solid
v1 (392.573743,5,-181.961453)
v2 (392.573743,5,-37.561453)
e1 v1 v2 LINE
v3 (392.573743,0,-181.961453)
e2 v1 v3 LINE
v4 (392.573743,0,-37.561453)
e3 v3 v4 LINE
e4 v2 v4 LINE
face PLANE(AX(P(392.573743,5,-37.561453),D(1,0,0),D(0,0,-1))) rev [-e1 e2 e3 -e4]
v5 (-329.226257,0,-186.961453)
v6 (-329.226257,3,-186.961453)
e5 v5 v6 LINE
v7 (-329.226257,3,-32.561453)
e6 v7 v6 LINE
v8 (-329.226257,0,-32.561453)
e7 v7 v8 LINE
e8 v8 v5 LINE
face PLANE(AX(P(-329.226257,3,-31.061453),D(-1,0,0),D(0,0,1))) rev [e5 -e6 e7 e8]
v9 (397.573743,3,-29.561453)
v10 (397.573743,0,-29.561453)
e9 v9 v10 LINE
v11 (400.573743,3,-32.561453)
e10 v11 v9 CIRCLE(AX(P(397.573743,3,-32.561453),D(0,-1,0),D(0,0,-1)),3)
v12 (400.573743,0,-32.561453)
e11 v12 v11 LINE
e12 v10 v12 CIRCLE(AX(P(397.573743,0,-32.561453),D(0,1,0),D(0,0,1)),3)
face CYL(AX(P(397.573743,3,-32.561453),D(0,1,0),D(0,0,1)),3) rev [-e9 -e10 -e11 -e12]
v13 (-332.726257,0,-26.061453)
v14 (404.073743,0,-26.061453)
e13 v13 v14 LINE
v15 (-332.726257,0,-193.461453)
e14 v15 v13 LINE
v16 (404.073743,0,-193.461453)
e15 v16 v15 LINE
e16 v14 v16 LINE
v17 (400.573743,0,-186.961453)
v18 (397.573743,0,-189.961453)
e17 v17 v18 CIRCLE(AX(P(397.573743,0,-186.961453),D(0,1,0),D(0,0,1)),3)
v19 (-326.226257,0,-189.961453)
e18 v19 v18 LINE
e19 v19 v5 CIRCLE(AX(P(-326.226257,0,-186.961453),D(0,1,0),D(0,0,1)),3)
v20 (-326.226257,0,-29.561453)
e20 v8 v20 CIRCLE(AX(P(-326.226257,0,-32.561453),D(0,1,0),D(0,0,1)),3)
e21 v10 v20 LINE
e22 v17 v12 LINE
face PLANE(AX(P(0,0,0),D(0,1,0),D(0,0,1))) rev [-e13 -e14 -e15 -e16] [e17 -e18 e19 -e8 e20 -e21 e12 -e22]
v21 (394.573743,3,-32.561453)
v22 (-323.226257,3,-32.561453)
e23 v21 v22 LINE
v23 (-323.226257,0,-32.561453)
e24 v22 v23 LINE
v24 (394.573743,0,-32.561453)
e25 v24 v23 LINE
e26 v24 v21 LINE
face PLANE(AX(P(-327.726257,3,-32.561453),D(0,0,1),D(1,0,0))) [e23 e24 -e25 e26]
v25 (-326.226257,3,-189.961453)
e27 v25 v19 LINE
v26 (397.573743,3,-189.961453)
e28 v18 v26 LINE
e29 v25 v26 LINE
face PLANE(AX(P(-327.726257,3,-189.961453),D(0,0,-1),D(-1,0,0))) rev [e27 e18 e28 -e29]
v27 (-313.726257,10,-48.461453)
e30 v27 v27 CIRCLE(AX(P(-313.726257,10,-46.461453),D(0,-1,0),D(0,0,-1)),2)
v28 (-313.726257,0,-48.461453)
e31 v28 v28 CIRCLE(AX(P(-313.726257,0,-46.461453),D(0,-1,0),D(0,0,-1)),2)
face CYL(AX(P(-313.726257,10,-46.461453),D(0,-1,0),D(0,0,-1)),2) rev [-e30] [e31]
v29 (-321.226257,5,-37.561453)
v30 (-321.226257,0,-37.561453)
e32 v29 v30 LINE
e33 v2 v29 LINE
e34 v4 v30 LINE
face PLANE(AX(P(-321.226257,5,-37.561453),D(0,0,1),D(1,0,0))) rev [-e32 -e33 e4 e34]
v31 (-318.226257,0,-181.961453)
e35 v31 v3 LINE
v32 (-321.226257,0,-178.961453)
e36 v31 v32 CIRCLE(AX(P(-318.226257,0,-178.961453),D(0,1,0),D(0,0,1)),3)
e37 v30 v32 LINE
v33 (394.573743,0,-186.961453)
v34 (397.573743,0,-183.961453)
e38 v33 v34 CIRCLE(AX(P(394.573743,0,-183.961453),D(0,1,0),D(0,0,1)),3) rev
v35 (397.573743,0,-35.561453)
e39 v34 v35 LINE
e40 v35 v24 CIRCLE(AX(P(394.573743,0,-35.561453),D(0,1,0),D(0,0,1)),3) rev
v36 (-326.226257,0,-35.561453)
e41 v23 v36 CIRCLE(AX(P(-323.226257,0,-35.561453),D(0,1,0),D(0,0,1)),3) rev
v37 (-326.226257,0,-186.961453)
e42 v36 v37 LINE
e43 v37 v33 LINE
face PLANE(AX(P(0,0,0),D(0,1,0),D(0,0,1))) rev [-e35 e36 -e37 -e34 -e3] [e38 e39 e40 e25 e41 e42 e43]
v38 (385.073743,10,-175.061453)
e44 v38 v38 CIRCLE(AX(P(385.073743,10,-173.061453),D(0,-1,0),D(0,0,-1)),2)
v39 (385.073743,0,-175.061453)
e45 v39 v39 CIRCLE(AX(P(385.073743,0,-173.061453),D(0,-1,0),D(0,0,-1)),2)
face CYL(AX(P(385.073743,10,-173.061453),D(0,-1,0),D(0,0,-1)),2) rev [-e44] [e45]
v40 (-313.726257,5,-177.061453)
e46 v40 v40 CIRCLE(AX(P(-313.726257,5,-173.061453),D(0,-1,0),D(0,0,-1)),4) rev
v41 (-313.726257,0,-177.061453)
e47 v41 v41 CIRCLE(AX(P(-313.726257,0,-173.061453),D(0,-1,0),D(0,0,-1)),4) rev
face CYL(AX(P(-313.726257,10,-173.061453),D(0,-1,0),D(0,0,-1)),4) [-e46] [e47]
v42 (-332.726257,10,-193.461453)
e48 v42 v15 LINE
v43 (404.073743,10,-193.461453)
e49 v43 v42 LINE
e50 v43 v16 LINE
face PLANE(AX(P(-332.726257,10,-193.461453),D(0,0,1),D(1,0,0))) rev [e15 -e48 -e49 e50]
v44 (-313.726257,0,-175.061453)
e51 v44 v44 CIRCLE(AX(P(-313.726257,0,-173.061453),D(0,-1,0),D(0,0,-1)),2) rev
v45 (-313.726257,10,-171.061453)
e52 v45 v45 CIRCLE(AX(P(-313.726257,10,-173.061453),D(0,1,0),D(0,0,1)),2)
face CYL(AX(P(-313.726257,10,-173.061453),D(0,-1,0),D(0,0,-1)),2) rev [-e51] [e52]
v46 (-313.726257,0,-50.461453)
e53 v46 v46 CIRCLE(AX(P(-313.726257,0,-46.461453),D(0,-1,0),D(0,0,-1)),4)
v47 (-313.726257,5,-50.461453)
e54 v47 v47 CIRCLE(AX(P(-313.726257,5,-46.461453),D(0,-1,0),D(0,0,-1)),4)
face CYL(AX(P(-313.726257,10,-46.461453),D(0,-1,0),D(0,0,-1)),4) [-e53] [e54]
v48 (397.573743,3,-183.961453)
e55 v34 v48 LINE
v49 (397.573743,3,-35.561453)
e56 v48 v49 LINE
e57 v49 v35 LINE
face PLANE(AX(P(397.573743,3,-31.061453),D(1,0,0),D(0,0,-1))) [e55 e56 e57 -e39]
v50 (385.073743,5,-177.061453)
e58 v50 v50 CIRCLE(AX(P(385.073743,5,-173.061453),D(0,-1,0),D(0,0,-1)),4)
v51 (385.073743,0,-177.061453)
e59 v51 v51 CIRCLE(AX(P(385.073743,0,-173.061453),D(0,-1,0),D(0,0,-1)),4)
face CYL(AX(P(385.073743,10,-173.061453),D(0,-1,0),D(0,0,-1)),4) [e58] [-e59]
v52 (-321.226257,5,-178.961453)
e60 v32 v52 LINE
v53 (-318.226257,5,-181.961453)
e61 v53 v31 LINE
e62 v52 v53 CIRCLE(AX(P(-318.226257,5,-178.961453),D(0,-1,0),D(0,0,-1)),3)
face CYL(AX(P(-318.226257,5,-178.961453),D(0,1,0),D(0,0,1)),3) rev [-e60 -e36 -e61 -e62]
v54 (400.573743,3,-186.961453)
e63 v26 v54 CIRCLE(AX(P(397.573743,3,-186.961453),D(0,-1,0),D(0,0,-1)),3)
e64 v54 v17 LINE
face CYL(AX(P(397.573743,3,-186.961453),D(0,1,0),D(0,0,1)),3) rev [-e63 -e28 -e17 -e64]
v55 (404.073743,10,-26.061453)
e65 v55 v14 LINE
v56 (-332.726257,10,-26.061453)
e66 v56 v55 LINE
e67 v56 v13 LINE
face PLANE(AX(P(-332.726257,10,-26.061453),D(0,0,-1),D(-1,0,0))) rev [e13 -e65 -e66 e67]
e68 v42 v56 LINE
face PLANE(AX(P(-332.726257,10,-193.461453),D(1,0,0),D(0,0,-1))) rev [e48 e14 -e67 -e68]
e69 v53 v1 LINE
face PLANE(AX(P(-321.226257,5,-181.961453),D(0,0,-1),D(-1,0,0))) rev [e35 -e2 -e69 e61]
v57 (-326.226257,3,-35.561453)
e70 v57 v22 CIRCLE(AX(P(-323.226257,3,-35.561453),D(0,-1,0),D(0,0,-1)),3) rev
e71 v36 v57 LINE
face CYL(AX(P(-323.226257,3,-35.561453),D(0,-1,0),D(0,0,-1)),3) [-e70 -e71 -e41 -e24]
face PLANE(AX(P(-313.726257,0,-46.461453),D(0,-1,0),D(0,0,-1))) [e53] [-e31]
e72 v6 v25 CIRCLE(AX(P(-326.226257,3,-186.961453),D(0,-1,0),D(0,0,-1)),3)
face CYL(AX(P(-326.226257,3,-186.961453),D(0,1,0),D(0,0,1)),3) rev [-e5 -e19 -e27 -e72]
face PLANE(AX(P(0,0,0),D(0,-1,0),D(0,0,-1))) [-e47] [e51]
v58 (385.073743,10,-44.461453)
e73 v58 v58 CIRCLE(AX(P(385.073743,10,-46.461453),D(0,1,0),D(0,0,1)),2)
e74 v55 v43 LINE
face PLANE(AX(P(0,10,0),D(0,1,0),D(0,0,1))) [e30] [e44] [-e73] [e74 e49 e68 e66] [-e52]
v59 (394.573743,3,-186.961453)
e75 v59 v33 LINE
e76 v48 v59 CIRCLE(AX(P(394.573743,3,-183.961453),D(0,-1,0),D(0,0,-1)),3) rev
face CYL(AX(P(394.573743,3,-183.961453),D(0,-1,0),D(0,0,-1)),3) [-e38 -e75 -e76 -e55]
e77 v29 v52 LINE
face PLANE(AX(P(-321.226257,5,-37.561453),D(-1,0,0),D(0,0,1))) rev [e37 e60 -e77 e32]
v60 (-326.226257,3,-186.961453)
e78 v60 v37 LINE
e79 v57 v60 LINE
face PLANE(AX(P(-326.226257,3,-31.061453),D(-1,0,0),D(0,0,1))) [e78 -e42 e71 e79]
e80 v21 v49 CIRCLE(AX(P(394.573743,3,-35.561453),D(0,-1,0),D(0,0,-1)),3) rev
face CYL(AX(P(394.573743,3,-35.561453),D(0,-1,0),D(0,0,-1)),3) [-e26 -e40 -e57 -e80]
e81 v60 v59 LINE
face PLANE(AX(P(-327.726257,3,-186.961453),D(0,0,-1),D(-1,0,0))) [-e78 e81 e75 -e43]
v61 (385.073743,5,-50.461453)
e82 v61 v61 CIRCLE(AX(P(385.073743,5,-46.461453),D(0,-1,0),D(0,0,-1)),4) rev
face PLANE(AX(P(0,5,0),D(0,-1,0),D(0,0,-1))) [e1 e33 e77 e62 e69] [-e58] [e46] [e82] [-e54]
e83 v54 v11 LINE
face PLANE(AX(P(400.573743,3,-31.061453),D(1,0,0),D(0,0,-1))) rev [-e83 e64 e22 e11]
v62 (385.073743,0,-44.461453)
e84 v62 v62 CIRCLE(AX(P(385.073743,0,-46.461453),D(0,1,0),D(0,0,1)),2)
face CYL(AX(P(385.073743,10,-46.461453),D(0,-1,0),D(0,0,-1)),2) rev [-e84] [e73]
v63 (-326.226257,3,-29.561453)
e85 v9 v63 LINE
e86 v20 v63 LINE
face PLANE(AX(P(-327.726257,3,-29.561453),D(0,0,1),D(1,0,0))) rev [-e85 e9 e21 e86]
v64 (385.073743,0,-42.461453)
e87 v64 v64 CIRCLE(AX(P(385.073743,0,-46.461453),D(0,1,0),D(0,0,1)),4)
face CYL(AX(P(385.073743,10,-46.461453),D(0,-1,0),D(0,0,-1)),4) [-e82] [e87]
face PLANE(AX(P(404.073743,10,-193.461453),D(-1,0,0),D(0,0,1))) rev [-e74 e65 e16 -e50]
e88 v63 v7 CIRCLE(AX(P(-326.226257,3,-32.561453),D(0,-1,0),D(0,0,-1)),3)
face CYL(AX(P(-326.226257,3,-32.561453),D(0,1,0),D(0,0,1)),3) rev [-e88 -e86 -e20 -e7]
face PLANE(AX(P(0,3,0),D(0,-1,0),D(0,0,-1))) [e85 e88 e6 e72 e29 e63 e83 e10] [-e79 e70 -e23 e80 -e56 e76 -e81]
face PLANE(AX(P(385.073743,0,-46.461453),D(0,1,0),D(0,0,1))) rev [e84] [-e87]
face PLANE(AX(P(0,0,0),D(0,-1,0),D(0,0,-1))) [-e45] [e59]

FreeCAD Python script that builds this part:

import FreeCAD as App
import Part
import Sketcher

V = App.Vector


def edges_at(feature, points):
    """Names of the edges that pass closest to the given points."""
    edges = feature.Shape.Edges
    near = lambda p: min(range(len(edges)), key=lambda i: edges[i].distToShape(Part.Vertex(*p))[0])
    return sorted({f"Edge{near(p) + 1}" for p in points})

doc = App.newDocument("Part")
body = doc.addObject("PartDesign::Body", "Body")

# Sketch on XZ plane
sketch1 = body.newObject("Sketcher::SketchObject", "Sketch")
sketch1.AttachmentSupport = (doc.getObject("XZ_Plane"), [""])
sketch1.MapMode = "FlatFace"
sketch1.addGeometry([
    Part.LineSegment(V(-333, -193, 0), V(-333, -26, 0)),
    Part.LineSegment(V(-333, -26, 0), V(404, -26, 0)),
    Part.LineSegment(V(404, -26, 0), V(404, -193, 0)),
    Part.LineSegment(V(404, -193, 0), V(-333, -193, 0)),
], False)
sketch1.addConstraint([
    Sketcher.Constraint("Coincident", 0, 2, 1, 1),
    Sketcher.Constraint("Coincident", 1, 2, 2, 1),
    Sketcher.Constraint("Coincident", 2, 2, 3, 1),
    Sketcher.Constraint("Coincident", 3, 2, 0, 1),
    Sketcher.Constraint("Vertical", 0),
    Sketcher.Constraint("Horizontal", 1),
    Sketcher.Constraint("Vertical", 2),
    Sketcher.Constraint("Horizontal", 3),
    Sketcher.Constraint("DistanceX", 1, 1, 1, 2, 736.8),
    Sketcher.Constraint("DistanceY", 0, 1, 0, 2, 167.4),
    Sketcher.Constraint("DistanceX", 0, 2, -1, 1, 332.726257),
    Sketcher.Constraint("DistanceY", 0, 2, -1, 1, 26.061453),
])
pad1 = body.newObject("PartDesign::Pad", "Pad")
pad1.Profile = sketch1
pad1.Length = 10
pad1.Reversed = True

# Sketch on XZ plane
sketch2 = body.newObject("Sketcher::SketchObject", "Sketch001")
sketch2.AttachmentSupport = (doc.getObject("XZ_Plane"), [""])
sketch2.MapMode = "FlatFace"
sketch2.addGeometry([
    Part.LineSegment(V(-329, -30, 0), V(-329, -190, 0)),  # 0
    Part.LineSegment(V(-329, -190, 0), V(401, -190, 0)),  # 1
    Part.LineSegment(V(401, -190, 0), V(401, -30, 0)),  # 2
    Part.LineSegment(V(401, -30, 0), V(-329, -30, 0)),  # 3
    Part.LineSegment(V(398, -187, 0), V(-326, -187, 0)),  # 4
    Part.LineSegment(V(-326, -187, 0), V(-326, -33, 0)),  # 5
    Part.LineSegment(V(-326, -33, 0), V(398, -33, 0)),  # 6
    Part.LineSegment(V(398, -33, 0), V(398, -187, 0)),  # 7
], False)
sketch2.addConstraint([
    Sketcher.Constraint("Coincident", 0, 2, 1, 1),
    Sketcher.Constraint("Coincident", 1, 2, 2, 1),
    Sketcher.Constraint("Coincident", 2, 2, 3, 1),
    Sketcher.Constraint("Coincident", 3, 2, 0, 1),
    Sketcher.Constraint("Coincident", 4, 2, 5, 1),
    Sketcher.Constraint("Coincident", 5, 2, 6, 1),
    Sketcher.Constraint("Coincident", 6, 2, 7, 1),
    Sketcher.Constraint("Coincident", 7, 2, 4, 1),
    Sketcher.Constraint("Vertical", 0),
    Sketcher.Constraint("Horizontal", 1),
    Sketcher.Constraint("Vertical", 2),
    Sketcher.Constraint("Horizontal", 3),
    Sketcher.Constraint("Horizontal", 4),
    Sketcher.Constraint("Vertical", 5),
    Sketcher.Constraint("Horizontal", 6),
    Sketcher.Constraint("Vertical", 7),
    Sketcher.Constraint("DistanceX", 1, 1, 1, 2, 729.8),
    Sketcher.Constraint("DistanceX", 4, 2, 4, 1, 723.8),
    Sketcher.Constraint("DistanceY", 0, 2, 0, 1, 160.4),
    Sketcher.Constraint("DistanceY", 5, 1, 5, 2, 154.4),
    Sketcher.Constraint("DistanceX", 0, 2, 4, 2, 3.0),
    Sketcher.Constraint("DistanceY", 0, 2, 4, 2, 3.0),
    Sketcher.Constraint("DistanceX", 0, 2, -1, 1, 329.226257),
    Sketcher.Constraint("DistanceY", 0, 2, -1, 1, 189.961453),
])
pocket1 = body.newObject("PartDesign::Pocket", "Pocket")
pocket1.Profile = sketch2
pocket1.Length = 3

# Sketch on XZ plane
sketch3 = body.newObject("Sketcher::SketchObject", "Sketch002")
sketch3.AttachmentSupport = (doc.getObject("XZ_Plane"), [""])
sketch3.MapMode = "FlatFace"
sketch3.addGeometry([
    Part.LineSegment(V(-321, -38, 0), V(-321, -182, 0)),
    Part.LineSegment(V(-321, -182, 0), V(393, -182, 0)),
    Part.LineSegment(V(393, -182, 0), V(393, -38, 0)),
    Part.LineSegment(V(393, -38, 0), V(-321, -38, 0)),
], False)
sketch3.addConstraint([
    Sketcher.Constraint("Coincident", 0, 2, 1, 1),
    Sketcher.Constraint("Coincident", 1, 2, 2, 1),
    Sketcher.Constraint("Coincident", 2, 2, 3, 1),
    Sketcher.Constraint("Coincident", 3, 2, 0, 1),
    Sketcher.Constraint("Vertical", 0),
    Sketcher.Constraint("Horizontal", 1),
    Sketcher.Constraint("Vertical", 2),
    Sketcher.Constraint("Horizontal", 3),
    Sketcher.Constraint("DistanceX", 1, 1, 1, 2, 713.8),
    Sketcher.Constraint("DistanceY", 0, 2, 0, 1, 144.4),
    Sketcher.Constraint("DistanceX", 0, 2, -1, 1, 321.226257),
    Sketcher.Constraint("DistanceY", 0, 2, -1, 1, 181.961453),
])
pocket2 = body.newObject("PartDesign::Pocket", "Pocket001")
pocket2.Profile = sketch3
pocket2.Length = 5
doc.recompute()

fillet = body.newObject("PartDesign::Fillet", "Fillet")
fillet.Base = (pocket2, edges_at(pocket2, [
    (-329.226, 1.5, -189.961),
    (-329.226, 1.5, -29.561),
    (400.574, 1.5, -29.561),
    (400.574, 1.5, -189.961),
    (-326.226, 1.5, -32.561),
    (397.574, 1.5, -32.561),
    (397.574, 1.5, -186.961),
    (-321.226, 2.5, -181.961),
]))
fillet.Radius = 3

# Sketch on XZ plane
sketch4 = body.newObject("Sketcher::SketchObject", "Sketch003")
sketch4.AttachmentSupport = (doc.getObject("XZ_Plane"), [""])
sketch4.MapMode = "FlatFace"
sketch4.addGeometry([
    Part.Circle(V(-313.7, -173.1, 0), V(0, 0, 1), 4),  # 0
    Part.Circle(V(-313.7, -173.1, 0), V(0, 0, 1), 2),  # 1
    Part.Circle(V(385.1, -173.1, 0), V(0, 0, 1), 4),  # 2
    Part.Circle(V(385.1, -173.1, 0), V(0, 0, 1), 2),  # 3
    Part.Circle(V(-313.7, -46.5, 0), V(0, 0, 1), 4),  # 4
    Part.Circle(V(385.1, -46.5, 0), V(0, 0, 1), 4),  # 5
], False)
sketch4.addConstraint([
    Sketcher.Constraint("Coincident", 1, 3, 0, 3),
    Sketcher.Constraint("Coincident", 3, 3, 2, 3),
    Sketcher.Constraint("Equal", 0, 2),
    Sketcher.Constraint("Equal", 1, 3),
    Sketcher.Constraint("Equal", 2, 4),
    Sketcher.Constraint("Equal", 4, 5),
    Sketcher.Constraint("Horizontal", 1, 3, 2, 3),
    Sketcher.Constraint("Horizontal", 4, 3, 5, 3),
    Sketcher.Constraint("Vertical", 1, 3, 4, 3),
    Sketcher.Constraint("Vertical", 3, 3, 5, 3),
    Sketcher.Constraint("Diameter", 0, 8.0),
    Sketcher.Constraint("Diameter", 1, 4.0),
    Sketcher.Constraint("DistanceX", 0, 3, 2, 3, 698.8),
    Sketcher.Constraint("DistanceY", 0, 3, 4, 3, 126.6),
    Sketcher.Constraint("DistanceX", 0, 3, -1, 1, 313.726257),
    Sketcher.Constraint("DistanceY", 0, 3, -1, 1, 173.061453),
])
pad2 = body.newObject("PartDesign::Pad", "Pad001")
pad2.Profile = sketch4
pad2.Length = 10
pad2.Reversed = True

# Sketch on XZ plane
sketch5 = body.newObject("Sketcher::SketchObject", "Sketch004")
sketch5.AttachmentSupport = (doc.getObject("XZ_Plane"), [""])
sketch5.MapMode = "FlatFace"
sketch5.addGeometry([
    Part.Circle(V(-313.7, -46.5, 0), V(0, 0, 1), 2),
    Part.Circle(V(-313.7, -173.1, 0), V(0, 0, 1), 2),
    Part.Circle(V(385.1, -173.1, 0), V(0, 0, 1), 2),
    Part.Circle(V(385.1, -46.5, 0), V(0, 0, 1), 2),
], False)
sketch5.addConstraint([
    Sketcher.Constraint("Equal", 0, 1),
    Sketcher.Constraint("Equal", 1, 2),
    Sketcher.Constraint("Equal", 2, 3),
    Sketcher.Constraint("Horizontal", 1, 3, 2, 3),
    Sketcher.Constraint("Horizontal", 0, 3, 3, 3),
    Sketcher.Constraint("Vertical", 0, 3, 1, 3),
    Sketcher.Constraint("Vertical", 2, 3, 3, 3),
    Sketcher.Constraint("Diameter", 0, 4.0),
    Sketcher.Constraint("DistanceY", 1, 3, 0, 3, 126.6),
    Sketcher.Constraint("DistanceX", 1, 3, 2, 3, 698.8),
    Sketcher.Constraint("DistanceX", 0, 3, -1, 1, 313.726257),
    Sketcher.Constraint("DistanceY", 0, 3, -1, 1, 46.461453),
])
pocket3 = body.newObject("PartDesign::Pocket", "Pocket002")
pocket3.Profile = sketch5
pocket3.Length = 10

doc.recompute()
